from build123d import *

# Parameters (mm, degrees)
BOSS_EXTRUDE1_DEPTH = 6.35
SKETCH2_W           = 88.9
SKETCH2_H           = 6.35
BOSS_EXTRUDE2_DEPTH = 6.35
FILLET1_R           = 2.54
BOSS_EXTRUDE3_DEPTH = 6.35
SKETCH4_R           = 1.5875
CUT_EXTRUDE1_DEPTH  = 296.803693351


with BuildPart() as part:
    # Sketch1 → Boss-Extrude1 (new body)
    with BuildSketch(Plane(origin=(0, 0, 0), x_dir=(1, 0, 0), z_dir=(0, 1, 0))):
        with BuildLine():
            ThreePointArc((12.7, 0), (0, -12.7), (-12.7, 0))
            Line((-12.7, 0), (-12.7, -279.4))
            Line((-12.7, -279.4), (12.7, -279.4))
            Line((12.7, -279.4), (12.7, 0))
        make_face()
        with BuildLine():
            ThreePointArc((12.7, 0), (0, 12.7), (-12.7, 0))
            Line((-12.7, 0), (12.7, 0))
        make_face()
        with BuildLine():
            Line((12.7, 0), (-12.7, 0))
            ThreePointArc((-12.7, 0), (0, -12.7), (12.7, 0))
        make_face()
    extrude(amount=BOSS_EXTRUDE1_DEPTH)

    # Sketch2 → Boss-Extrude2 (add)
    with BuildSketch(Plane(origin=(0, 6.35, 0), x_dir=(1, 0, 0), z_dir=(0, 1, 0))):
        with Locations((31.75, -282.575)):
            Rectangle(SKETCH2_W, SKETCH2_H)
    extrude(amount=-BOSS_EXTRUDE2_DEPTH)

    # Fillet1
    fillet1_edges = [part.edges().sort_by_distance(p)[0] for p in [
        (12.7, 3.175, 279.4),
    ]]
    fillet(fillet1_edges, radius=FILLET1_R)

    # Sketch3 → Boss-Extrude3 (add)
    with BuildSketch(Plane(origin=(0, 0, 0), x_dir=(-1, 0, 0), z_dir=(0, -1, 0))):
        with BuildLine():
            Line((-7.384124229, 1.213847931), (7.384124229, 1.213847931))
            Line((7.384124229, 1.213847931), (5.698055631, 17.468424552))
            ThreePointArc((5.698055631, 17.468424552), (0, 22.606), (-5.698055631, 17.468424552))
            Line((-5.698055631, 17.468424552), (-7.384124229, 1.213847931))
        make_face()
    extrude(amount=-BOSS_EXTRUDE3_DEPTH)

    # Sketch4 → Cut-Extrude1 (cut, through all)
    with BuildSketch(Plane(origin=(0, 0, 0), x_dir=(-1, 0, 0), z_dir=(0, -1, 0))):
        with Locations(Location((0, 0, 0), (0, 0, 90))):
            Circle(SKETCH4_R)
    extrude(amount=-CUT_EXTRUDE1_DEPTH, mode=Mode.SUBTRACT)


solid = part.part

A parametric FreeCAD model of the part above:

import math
import FreeCAD as App
import Part
import Sketcher
from FreeCAD import Vector
Q = App.Units.Quantity


def edges_at(feature, points):
    """Names of the edges that pass closest to the given points."""
    edges = feature.Shape.Edges
    near = lambda p: min(range(len(edges)), key=lambda i: edges[i].distToShape(Part.Vertex(*p))[0])
    return sorted({f"Edge{near(p) + 1}" for p in points})

doc = App.newDocument("Part")
body = doc.addObject("PartDesign::Body", "Body")

# Sketch on XZ plane
sketch1 = body.newObject("Sketcher::SketchObject", "Sketch")
sketch1.AttachmentSupport = (doc.getObject("XZ_Plane"), [""])
sketch1.MapMode = "FlatFace"
sketch1.addGeometry(Part.LineSegment(Vector(-13, 279, 0), Vector(13, 279, 0)), False)
sketch1.addGeometry(Part.LineSegment(Vector(13, 279, 0), Vector(13, 0, 0)), False)
sketch1.addGeometry(Part.ArcOfCircle(Part.Circle(Vector(0, 0, 0), Vector(0, 0, 1), 13), math.radians(180), math.radians(360)), False)
sketch1.addGeometry(Part.LineSegment(Vector(-13, 0, 0), Vector(-13, 279, 0)), False)
sketch1.addConstraint(Sketcher.Constraint("Coincident", 0, 2, 1, 1))
sketch1.addConstraint(Sketcher.Constraint("Tangent", 1, 2, 2, 2))
sketch1.addConstraint(Sketcher.Constraint("Tangent", 2, 1, 3, 1))
sketch1.addConstraint(Sketcher.Constraint("Coincident", 3, 2, 0, 1))
sketch1.addConstraint(Sketcher.Constraint("Horizontal", 0))
sketch1.addConstraint(Sketcher.Constraint("Vertical", 1))
sketch1.addConstraint(Sketcher.Constraint("Vertical", 3))
sketch1.addConstraint(Sketcher.Constraint("Coincident", 2, 3, -1, 1))
sketch1.addConstraint(Sketcher.Constraint("Radius", 2, Q("0.5 in")))
sketch1.addConstraint(Sketcher.Constraint("DistanceY", 1, 2, 1, 1, Q("11 in")))
pad1 = body.newObject("PartDesign::Pad", "Pad")
pad1.Profile = sketch1
pad1.Length = Q("0.25 in")
pad1.Reversed = True

# Sketch on XZ plane
sketch2 = body.newObject("Sketcher::SketchObject", "Sketch001")
sketch2.AttachmentSupport = (doc.getObject("XZ_Plane"), [""])
sketch2.MapMode = "FlatFace"
sketch2.AttachmentOffset = App.Placement(Vector(0, 0, -0.25 * 25.4), App.Rotation())
sketch2.addGeometry(Part.LineSegment(Vector(-13, 279, 0), Vector(-13, 286, 0)), False)
sketch2.addGeometry(Part.LineSegment(Vector(-13, 286, 0), Vector(76, 286, 0)), False)
sketch2.addGeometry(Part.LineSegment(Vector(76, 286, 0), Vector(76, 279, 0)), False)
sketch2.addGeometry(Part.LineSegment(Vector(76, 279, 0), Vector(-13, 279, 0)), False)
sketch2.addConstraint(Sketcher.Constraint("Coincident", 0, 2, 1, 1))
sketch2.addConstraint(Sketcher.Constraint("Coincident", 1, 2, 2, 1))
sketch2.addConstraint(Sketcher.Constraint("Coincident", 2, 2, 3, 1))
sketch2.addConstraint(Sketcher.Constraint("Coincident", 3, 2, 0, 1))
sketch2.addConstraint(Sketcher.Constraint("Vertical", 0))
sketch2.addConstraint(Sketcher.Constraint("Horizontal", 1))
sketch2.addConstraint(Sketcher.Constraint("Vertical", 2))
sketch2.addConstraint(Sketcher.Constraint("Horizontal", 3))
sketch2.addConstraint(Sketcher.Constraint("DistanceX", 1, 1, 1, 2, Q("3.5 in")))
sketch2.addConstraint(Sketcher.Constraint("DistanceX", -1, 1, 1, 2, Q("3 in")))
sketch2.addConstraint(Sketcher.Constraint("DistanceY", -1, 1, 2, 2, Q("11 in")))
sketch2.addConstraint(Sketcher.Constraint("DistanceY", 0, 1, 0, 2, Q("0.25 in")))
pad2 = body.newObject("PartDesign::Pad", "Pad001")
pad2.Profile = sketch2
pad2.Length = Q("0.25 in")
doc.recompute()

fillet = body.newObject("PartDesign::Fillet", "Fillet")
fillet.Base = (pad2, edges_at(pad2, [(12.7, 3.175, 279.4)]))
fillet.Radius = Q("0.1 in")

# Sketch on XZ plane
sketch3 = body.newObject("Sketcher::SketchObject", "Sketch002")
sketch3.AttachmentSupport = (doc.getObject("XZ_Plane"), [""])
sketch3.MapMode = "FlatFace"
sketch3.addGeometry(Part.LineSegment(Vector(7, -1, 0), Vector(-7, -1, 0)), False)
sketch3.addGeometry(Part.LineSegment(Vector(-7, -1, 0), Vector(-6, -17, 0)), False)
sketch3.addGeometry(Part.ArcOfCircle(Part.Circle(Vector(0, -17, 0), Vector(0, 0, 1), 6), math.radians(-174), math.radians(-6)), False)
sketch3.addGeometry(Part.LineSegment(Vector(6, -17, 0), Vector(7, -1, 0)), False)
sketch3.addConstraint(Sketcher.Constraint("Coincident", 0, 2, 1, 1))
sketch3.addConstraint(Sketcher.Constraint("Tangent", 1, 2, 2, 1))
sketch3.addConstraint(Sketcher.Constraint("Tangent", 2, 2, 3, 1))
sketch3.addConstraint(Sketcher.Constraint("Coincident", 3, 2, 0, 1))
sketch3.addConstraint(Sketcher.Constraint("Horizontal", 0))
sketch3.addConstraint(Sketcher.Constraint("Symmetric", 1, 2, 2, 2, -2))
sketch3.addConstraint(Sketcher.Constraint("Radius", 2, 5.728628))
sketch3.addConstraint(Sketcher.Constraint("DistanceX", 0, 2, 0, 1, 14.768248))
sketch3.addConstraint(Sketcher.Constraint("Distance", 1, 16.34179))
sketch3.addConstraint(Sketcher.Constraint("DistanceY", 2, 3, -1, 1, 16.877372))
pad3 = body.newObject("PartDesign::Pad", "Pad002")
pad3.Profile = sketch3
pad3.Length = Q("0.25 in")
pad3.Reversed = True

# Sketch on XZ plane
sketch4 = body.newObject("Sketcher::SketchObject", "Sketch003")
sketch4.AttachmentSupport = (doc.getObject("XZ_Plane"), [""])
sketch4.MapMode = "FlatFace"
sketch4.addGeometry(Part.Circle(Vector(0, 0, 0), Vector(0, 0, 1), 1.6), False)
sketch4.addConstraint(Sketcher.Constraint("Coincident", 0, 3, -1, 1))
sketch4.addConstraint(Sketcher.Constraint("Diameter", 0, Q("0.125 in")))
pocket1 = body.newObject("PartDesign::Pocket", "Pocket")
pocket1.Profile = sketch4
pocket1.Type = "ThroughAll"

doc.recompute()
